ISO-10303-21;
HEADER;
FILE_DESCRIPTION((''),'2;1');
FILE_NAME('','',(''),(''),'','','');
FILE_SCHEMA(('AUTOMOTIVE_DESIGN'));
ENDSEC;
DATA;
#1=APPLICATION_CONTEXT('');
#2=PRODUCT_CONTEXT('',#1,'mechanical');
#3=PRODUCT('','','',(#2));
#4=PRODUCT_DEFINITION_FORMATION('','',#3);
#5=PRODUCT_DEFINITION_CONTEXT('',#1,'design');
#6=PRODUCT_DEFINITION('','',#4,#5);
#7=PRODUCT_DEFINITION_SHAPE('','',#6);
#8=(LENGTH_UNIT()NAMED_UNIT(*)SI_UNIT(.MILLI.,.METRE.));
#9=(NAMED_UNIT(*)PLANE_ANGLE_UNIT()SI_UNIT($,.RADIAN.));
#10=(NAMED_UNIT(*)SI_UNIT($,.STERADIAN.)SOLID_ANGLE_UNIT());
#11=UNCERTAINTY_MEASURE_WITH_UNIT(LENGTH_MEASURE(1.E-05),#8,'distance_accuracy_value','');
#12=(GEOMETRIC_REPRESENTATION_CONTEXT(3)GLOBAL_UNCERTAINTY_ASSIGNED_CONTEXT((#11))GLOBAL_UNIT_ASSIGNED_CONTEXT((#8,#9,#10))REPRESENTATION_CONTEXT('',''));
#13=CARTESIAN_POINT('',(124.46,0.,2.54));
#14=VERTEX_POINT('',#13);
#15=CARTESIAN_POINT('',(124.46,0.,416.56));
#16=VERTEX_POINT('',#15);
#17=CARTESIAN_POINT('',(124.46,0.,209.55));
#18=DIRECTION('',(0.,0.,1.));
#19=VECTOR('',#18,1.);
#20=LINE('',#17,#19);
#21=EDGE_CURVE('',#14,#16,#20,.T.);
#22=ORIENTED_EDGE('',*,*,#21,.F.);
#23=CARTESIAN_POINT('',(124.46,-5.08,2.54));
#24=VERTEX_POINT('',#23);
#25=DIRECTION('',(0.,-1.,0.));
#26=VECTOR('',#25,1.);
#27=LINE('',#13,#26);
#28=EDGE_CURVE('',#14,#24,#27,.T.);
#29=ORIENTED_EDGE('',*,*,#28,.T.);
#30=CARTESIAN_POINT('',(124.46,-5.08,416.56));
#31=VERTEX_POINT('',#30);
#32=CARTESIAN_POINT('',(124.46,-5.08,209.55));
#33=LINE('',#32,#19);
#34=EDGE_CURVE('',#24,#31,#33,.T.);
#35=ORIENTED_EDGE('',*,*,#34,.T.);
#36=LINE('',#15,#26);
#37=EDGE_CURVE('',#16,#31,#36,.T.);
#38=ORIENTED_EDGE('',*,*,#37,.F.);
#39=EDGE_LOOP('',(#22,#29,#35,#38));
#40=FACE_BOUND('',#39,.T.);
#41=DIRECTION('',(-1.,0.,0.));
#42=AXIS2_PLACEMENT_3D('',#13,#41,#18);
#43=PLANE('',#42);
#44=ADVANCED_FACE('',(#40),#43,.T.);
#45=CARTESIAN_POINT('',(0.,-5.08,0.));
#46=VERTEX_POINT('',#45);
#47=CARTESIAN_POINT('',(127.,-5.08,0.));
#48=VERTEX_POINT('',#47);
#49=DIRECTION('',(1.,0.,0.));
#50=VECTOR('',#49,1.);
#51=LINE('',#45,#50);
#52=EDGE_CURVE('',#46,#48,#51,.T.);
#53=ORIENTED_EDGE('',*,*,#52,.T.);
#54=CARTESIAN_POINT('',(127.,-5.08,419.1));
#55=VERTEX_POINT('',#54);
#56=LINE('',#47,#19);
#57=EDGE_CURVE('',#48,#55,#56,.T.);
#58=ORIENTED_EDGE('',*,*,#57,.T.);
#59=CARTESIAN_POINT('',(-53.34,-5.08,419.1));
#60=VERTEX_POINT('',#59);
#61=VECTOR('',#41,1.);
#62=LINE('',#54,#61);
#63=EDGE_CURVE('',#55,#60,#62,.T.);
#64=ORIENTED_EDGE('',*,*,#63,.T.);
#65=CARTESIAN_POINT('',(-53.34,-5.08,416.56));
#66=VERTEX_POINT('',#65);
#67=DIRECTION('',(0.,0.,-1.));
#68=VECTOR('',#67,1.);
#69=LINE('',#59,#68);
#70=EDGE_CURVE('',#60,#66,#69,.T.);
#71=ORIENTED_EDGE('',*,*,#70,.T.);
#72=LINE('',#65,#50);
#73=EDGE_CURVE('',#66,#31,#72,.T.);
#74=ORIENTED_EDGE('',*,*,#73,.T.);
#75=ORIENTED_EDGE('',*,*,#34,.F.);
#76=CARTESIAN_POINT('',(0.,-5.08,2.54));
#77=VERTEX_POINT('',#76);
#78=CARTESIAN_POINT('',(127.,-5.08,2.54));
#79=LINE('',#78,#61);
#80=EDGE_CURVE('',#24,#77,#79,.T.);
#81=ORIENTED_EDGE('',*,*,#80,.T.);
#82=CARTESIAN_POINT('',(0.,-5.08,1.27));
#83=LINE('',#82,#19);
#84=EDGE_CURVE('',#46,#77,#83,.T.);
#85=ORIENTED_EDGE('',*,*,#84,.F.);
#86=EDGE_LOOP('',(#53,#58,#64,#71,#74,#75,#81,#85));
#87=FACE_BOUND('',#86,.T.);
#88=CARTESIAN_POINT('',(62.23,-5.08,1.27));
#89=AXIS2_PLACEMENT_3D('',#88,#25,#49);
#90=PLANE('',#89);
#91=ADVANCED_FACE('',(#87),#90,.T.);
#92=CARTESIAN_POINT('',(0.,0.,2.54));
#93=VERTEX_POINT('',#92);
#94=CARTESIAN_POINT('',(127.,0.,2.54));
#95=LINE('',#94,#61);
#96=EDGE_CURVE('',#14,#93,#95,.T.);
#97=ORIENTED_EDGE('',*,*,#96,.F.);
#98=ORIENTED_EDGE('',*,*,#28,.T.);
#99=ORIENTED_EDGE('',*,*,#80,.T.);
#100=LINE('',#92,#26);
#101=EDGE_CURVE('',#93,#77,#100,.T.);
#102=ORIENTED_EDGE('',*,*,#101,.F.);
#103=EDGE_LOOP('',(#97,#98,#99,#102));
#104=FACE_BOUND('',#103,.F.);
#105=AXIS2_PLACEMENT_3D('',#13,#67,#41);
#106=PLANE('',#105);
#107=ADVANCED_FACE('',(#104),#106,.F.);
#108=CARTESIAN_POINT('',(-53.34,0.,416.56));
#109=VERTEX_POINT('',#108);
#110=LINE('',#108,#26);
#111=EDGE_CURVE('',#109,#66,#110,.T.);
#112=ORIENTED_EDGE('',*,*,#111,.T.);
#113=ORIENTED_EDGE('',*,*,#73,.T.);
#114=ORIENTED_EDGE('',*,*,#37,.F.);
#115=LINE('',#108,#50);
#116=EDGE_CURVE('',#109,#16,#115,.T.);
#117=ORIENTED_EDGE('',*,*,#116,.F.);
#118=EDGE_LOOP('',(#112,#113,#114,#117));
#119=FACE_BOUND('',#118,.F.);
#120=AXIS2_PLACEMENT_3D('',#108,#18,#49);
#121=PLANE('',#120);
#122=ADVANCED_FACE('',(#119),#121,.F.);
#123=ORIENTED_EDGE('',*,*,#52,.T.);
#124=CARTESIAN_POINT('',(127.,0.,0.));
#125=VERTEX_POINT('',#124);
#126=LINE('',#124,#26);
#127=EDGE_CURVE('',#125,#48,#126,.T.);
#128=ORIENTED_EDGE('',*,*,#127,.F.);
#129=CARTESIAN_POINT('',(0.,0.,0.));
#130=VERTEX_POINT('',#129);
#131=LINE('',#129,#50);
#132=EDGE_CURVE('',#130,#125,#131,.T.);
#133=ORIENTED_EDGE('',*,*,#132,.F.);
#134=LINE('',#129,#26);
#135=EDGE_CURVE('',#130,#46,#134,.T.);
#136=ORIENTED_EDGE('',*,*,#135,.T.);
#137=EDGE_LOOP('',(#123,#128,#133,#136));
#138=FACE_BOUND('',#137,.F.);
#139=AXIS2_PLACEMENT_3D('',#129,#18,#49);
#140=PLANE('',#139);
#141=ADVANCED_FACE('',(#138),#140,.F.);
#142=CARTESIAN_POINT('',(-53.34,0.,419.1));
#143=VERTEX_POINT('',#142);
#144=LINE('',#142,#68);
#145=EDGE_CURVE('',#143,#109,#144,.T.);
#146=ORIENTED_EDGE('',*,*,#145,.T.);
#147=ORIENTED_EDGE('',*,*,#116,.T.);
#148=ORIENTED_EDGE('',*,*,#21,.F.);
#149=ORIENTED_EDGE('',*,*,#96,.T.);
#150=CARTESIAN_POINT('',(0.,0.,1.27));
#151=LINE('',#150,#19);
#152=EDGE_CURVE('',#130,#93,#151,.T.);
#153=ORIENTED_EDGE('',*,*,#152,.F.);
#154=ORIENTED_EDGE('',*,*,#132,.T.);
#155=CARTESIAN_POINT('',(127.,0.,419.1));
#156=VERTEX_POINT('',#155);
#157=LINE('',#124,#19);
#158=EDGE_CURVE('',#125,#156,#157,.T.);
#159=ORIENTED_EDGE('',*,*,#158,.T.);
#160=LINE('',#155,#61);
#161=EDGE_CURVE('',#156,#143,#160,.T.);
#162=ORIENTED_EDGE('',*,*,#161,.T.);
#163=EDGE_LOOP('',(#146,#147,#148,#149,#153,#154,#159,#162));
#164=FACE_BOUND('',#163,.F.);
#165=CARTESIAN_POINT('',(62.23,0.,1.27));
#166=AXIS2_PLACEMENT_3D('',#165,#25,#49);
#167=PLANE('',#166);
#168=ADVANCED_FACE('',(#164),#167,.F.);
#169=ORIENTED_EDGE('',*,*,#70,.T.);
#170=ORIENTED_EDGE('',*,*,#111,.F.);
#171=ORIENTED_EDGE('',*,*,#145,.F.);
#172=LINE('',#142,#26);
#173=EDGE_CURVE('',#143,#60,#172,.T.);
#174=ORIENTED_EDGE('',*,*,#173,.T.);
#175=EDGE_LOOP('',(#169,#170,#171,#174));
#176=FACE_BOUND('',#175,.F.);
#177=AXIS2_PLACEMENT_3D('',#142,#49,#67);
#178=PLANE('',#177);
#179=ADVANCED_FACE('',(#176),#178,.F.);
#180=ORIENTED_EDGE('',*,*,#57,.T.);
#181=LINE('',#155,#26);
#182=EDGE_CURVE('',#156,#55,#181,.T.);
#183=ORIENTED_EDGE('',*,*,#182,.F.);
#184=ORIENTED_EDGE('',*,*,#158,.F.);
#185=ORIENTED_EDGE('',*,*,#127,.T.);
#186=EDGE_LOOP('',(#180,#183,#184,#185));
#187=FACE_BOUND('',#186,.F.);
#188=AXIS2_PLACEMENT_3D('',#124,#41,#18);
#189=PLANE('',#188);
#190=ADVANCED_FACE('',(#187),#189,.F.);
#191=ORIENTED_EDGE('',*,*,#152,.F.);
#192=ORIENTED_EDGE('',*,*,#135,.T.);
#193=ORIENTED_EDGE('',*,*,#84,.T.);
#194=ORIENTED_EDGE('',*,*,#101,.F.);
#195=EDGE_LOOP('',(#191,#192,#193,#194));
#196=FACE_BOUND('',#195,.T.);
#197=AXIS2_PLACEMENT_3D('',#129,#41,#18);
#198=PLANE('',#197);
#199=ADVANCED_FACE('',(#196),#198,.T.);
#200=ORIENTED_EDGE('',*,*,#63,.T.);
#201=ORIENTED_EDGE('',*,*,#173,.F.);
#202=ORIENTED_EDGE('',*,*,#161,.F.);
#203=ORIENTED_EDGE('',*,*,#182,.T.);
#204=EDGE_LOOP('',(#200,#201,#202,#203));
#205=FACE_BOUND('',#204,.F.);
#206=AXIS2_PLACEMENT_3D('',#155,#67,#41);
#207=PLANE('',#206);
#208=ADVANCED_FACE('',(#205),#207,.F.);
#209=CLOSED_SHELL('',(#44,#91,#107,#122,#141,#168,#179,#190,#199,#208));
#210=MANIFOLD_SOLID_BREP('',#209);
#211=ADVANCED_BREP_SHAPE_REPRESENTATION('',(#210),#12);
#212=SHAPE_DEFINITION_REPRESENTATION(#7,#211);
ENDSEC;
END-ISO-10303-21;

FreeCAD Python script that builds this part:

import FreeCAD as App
import Part
import Sketcher
from FreeCAD import Vector
Q = App.Units.Quantity


def add_polygon(sketch, points):
    """Adds a closed chain of lines whose ends are joined by coincident constraints."""
    first, n = sketch.GeometryCount, len(points)
    for a, b in zip(points, points[1:] + points[:1]):
        sketch.addGeometry(Part.LineSegment(App.Vector(*a, 0), App.Vector(*b, 0)), False)
    for i in range(n):
        sketch.addConstraint(Sketcher.Constraint("Coincident", first + i, 2, first + (i + 1) % n, 1))

doc = App.newDocument("Part")
body = doc.addObject("PartDesign::Body", "Body")

# Sketch on XZ plane
sketch1 = doc.addObject("Sketcher::SketchObject", "Sketch")
body.addObject(sketch1)
sketch1.AttachmentSupport = (doc.XZ_Plane, [""])
sketch1.MapMode = "FlatFace"
add_polygon(sketch1, [(0, 2.5), (0, 0), (127, 0), (127, 419.1), (-53.3, 419.1), (-53.3, 416.6), (124.5, 416.6), (124.5, 2.5)])  # lines 0-7
sketch1.addConstraint(Sketcher.Constraint("Vertical", 0))
sketch1.addConstraint(Sketcher.Constraint("Horizontal", 1))
sketch1.addConstraint(Sketcher.Constraint("Vertical", 2))
sketch1.addConstraint(Sketcher.Constraint("Horizontal", 3))
sketch1.addConstraint(Sketcher.Constraint("Vertical", 4))
sketch1.addConstraint(Sketcher.Constraint("Horizontal", 5))
sketch1.addConstraint(Sketcher.Constraint("Vertical", 6))
sketch1.addConstraint(Sketcher.Constraint("Horizontal", 7))
sketch1.addConstraint(Sketcher.Constraint("Coincident", 0, 2, -1, 1))
sketch1.addConstraint(Sketcher.Constraint("Equal", 0, 4))
sketch1.addConstraint(Sketcher.Constraint("DistanceX", 1, 1, 1, 2, Q("5 in")))
sketch1.addConstraint(Sketcher.Constraint("DistanceX", 5, 1, 5, 2, Q("7 in")))
sketch1.addConstraint(Sketcher.Constraint("DistanceX", 3, 2, 3, 1, Q("7.1 in")))
sketch1.addConstraint(Sketcher.Constraint("DistanceY", 0, 2, 0, 1, Q("0.1 in")))
sketch1.addConstraint(Sketcher.Constraint("DistanceY", 2, 1, 2, 2, Q("16.5 in")))
pad1 = doc.addObject("PartDesign::Pad", "Pad")
body.addObject(pad1)
pad1.Profile = sketch1
pad1.Length = Q("0.2 in")

doc.recompute()
